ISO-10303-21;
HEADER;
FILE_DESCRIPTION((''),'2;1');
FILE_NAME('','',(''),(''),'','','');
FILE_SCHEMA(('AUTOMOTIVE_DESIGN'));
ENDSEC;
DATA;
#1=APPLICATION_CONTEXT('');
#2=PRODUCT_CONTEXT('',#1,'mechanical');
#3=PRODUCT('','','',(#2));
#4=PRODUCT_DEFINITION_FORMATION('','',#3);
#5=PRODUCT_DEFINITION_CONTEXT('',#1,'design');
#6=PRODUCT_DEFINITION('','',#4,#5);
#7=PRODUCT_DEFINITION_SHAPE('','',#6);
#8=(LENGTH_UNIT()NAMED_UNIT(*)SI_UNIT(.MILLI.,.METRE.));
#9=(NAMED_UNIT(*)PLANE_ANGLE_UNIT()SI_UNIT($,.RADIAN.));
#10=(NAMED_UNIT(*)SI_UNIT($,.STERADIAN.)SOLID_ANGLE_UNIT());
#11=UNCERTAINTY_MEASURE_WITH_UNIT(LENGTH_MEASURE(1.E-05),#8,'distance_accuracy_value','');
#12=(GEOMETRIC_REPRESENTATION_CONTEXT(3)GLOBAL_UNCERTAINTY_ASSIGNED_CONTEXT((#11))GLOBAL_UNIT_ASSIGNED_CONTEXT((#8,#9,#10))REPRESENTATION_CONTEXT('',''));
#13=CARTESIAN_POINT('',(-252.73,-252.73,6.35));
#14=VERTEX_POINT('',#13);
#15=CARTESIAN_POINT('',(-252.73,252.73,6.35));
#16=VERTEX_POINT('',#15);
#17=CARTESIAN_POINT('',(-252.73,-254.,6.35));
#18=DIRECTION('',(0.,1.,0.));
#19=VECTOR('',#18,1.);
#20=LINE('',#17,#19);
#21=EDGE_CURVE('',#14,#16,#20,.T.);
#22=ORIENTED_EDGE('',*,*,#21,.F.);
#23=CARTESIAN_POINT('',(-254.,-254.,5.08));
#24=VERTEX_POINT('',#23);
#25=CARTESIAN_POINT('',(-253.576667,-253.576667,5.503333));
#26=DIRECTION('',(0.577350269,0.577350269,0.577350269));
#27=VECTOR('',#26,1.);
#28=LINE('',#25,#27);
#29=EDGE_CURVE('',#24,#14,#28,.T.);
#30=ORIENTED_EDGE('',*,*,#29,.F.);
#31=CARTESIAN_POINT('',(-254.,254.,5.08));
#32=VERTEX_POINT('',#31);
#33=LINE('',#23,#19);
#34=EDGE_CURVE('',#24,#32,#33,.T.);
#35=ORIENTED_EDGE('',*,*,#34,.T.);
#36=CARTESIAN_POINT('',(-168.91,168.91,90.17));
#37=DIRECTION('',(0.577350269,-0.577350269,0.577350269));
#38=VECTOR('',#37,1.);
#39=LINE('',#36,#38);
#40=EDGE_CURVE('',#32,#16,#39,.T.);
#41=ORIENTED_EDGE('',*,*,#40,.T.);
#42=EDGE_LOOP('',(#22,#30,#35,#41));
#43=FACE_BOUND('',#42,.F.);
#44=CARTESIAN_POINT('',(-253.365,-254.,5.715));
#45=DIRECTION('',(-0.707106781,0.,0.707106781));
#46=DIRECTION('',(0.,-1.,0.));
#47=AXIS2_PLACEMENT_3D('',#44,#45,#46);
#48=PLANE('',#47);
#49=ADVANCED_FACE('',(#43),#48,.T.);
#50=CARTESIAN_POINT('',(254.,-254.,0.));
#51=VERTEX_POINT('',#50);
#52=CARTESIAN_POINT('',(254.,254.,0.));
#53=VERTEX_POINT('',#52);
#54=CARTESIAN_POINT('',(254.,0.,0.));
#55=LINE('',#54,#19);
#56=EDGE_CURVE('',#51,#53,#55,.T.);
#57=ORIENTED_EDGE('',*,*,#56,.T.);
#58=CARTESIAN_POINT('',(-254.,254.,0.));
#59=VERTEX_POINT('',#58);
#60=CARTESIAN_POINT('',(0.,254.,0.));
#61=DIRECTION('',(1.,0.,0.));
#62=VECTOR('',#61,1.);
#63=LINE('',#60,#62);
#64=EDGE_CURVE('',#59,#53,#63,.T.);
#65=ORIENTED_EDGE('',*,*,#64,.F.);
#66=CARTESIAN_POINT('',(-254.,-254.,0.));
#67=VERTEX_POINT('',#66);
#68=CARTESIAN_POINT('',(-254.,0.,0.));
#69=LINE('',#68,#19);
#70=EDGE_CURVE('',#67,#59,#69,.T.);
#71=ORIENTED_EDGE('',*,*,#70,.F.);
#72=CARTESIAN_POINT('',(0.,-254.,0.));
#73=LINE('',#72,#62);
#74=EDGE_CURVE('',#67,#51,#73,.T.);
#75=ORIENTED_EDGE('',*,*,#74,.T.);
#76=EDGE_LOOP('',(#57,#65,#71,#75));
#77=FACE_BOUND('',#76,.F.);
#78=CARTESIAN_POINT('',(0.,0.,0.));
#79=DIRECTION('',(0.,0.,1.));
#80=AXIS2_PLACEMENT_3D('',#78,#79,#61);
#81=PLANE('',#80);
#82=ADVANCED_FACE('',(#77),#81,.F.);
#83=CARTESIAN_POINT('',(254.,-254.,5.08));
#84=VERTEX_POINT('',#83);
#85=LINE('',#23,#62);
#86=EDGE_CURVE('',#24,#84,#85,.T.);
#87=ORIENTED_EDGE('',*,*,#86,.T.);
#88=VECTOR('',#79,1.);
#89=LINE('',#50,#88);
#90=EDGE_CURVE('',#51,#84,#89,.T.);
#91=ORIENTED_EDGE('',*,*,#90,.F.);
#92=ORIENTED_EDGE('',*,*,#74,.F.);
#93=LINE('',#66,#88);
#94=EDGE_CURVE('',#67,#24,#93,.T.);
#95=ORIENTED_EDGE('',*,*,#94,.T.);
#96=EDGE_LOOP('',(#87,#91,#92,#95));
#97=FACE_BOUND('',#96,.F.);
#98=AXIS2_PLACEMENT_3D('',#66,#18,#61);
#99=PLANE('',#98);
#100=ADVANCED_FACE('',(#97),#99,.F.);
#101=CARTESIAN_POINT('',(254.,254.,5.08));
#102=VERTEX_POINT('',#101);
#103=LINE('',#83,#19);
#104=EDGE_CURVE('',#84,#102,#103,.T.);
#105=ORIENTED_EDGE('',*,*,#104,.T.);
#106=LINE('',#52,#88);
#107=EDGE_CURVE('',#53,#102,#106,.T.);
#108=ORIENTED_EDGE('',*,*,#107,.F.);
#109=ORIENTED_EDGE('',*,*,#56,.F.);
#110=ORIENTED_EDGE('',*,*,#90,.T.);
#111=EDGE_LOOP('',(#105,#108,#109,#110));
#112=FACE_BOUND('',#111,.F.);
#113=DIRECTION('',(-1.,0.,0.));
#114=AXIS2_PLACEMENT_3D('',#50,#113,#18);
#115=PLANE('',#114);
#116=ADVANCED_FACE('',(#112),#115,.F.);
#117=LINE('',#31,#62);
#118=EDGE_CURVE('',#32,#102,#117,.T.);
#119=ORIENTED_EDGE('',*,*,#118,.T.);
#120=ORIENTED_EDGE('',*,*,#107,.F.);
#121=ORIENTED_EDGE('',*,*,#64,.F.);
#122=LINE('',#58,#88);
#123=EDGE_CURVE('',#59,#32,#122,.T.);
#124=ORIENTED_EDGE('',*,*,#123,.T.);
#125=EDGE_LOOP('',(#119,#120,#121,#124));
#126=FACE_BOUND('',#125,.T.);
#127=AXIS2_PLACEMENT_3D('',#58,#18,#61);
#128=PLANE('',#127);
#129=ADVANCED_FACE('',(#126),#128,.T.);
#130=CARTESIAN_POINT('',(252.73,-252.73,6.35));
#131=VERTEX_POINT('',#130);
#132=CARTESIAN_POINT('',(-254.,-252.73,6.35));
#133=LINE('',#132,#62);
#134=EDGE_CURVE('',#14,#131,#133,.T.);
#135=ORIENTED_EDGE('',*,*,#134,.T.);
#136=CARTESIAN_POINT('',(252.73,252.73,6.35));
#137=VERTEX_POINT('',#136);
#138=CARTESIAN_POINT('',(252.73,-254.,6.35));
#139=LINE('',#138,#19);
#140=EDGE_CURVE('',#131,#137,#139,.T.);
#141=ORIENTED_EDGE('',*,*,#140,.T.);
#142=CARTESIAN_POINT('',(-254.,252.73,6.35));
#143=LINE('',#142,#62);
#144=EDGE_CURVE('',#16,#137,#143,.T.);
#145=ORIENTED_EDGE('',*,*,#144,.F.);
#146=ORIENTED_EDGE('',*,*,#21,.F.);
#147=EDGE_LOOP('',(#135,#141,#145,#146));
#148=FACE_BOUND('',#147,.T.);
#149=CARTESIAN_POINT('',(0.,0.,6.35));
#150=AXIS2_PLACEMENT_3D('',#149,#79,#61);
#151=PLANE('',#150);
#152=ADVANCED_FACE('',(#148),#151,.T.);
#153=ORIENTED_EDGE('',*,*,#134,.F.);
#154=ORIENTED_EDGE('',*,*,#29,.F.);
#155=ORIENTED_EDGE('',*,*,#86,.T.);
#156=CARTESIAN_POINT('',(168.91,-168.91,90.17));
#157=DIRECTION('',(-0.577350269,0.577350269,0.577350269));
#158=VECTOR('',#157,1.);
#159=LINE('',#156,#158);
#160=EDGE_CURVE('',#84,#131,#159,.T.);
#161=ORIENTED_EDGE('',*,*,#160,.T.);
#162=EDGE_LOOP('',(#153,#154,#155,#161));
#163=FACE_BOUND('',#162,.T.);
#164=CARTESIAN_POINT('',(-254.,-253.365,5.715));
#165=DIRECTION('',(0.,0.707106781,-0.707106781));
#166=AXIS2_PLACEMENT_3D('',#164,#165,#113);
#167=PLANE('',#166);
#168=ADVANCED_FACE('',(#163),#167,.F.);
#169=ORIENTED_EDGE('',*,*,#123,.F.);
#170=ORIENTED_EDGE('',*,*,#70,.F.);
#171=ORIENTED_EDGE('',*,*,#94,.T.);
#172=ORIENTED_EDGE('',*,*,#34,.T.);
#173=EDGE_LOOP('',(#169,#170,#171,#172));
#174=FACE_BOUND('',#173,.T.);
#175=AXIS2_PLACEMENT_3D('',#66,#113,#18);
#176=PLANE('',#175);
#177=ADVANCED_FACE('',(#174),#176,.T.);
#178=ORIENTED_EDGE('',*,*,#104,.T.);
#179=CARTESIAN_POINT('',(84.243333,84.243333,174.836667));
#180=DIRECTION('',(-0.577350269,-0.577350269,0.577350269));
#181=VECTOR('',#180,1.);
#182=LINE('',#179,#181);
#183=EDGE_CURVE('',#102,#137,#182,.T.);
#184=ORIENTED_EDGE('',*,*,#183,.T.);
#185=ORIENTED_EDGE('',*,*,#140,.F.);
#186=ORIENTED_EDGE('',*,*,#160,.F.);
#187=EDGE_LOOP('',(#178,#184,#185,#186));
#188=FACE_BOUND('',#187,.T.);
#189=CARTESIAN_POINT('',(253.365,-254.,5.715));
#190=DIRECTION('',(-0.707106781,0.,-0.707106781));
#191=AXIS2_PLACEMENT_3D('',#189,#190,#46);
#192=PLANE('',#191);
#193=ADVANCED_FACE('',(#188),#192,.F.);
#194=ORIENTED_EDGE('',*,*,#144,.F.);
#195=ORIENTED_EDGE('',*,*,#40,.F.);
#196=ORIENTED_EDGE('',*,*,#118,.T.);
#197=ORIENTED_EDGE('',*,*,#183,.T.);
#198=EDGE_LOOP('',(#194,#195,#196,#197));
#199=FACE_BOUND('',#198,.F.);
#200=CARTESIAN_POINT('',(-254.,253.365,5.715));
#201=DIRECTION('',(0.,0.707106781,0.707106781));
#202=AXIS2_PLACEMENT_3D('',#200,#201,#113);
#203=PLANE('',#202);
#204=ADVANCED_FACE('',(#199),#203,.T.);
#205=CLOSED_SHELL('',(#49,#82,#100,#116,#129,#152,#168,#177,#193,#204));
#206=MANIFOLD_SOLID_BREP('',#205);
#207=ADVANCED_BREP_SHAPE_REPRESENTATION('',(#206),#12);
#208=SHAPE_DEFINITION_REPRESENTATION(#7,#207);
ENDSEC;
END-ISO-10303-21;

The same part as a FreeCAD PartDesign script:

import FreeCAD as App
import Part
import Sketcher

V = App.Vector
Q = App.Units.Quantity


def edges_at(feature, points):
    """Names of the edges that pass closest to the given points."""
    edges = feature.Shape.Edges
    near = lambda p: min(range(len(edges)), key=lambda i: edges[i].distToShape(Part.Vertex(*p))[0])
    return sorted({f"Edge{near(p) + 1}" for p in points})


def add_polygon(sketch, points):
    """Adds a closed chain of lines whose ends are joined by coincident constraints."""
    first, n = sketch.GeometryCount, len(points)
    for a, b in zip(points, points[1:] + points[:1]):
        sketch.addGeometry(Part.LineSegment(App.Vector(*a, 0), App.Vector(*b, 0)), False)
    for i in range(n):
        sketch.addConstraint(Sketcher.Constraint("Coincident", first + i, 2, first + (i + 1) % n, 1))

doc = App.newDocument("Part")
body = doc.addObject("PartDesign::Body", "Body")

# Sketch on XY plane
sketch1 = body.newObject("Sketcher::SketchObject", "Sketch")
sketch1.AttachmentSupport = (doc.getObject("XY_Plane"), [""])
sketch1.MapMode = "FlatFace"
add_polygon(sketch1, [(-254, 254), (-254, -254), (254, -254), (254, 254)])  # lines 0-3
sketch1.addConstraint(Sketcher.Constraint("Vertical", 0))
sketch1.addConstraint(Sketcher.Constraint("Horizontal", 1))
sketch1.addConstraint(Sketcher.Constraint("Vertical", 2))
sketch1.addConstraint(Sketcher.Constraint("Horizontal", 3))
sketch1.addConstraint(Sketcher.Constraint("Symmetric", 0, 2, 2, 2, -1, 1))
sketch1.addConstraint(Sketcher.Constraint("Equal", 3, 0))
sketch1.addConstraint(Sketcher.Constraint("DistanceX", 1, 1, 1, 2, Q("20 in")))
pad1 = body.newObject("PartDesign::Pad", "Pad")
pad1.Profile = sketch1
pad1.Length = Q("0.25 in")
doc.recompute()

chamfer = body.newObject("PartDesign::Chamfer", "Chamfer")
chamfer.Base = (pad1, edges_at(pad1, [
    (254, 0, 6.35),
    (0, 254, 6.35),
    (-254, 0, 6.35),
    (0, -254, 6.35),
]))
chamfer.Size = Q("0.05 in")

doc.recompute()
